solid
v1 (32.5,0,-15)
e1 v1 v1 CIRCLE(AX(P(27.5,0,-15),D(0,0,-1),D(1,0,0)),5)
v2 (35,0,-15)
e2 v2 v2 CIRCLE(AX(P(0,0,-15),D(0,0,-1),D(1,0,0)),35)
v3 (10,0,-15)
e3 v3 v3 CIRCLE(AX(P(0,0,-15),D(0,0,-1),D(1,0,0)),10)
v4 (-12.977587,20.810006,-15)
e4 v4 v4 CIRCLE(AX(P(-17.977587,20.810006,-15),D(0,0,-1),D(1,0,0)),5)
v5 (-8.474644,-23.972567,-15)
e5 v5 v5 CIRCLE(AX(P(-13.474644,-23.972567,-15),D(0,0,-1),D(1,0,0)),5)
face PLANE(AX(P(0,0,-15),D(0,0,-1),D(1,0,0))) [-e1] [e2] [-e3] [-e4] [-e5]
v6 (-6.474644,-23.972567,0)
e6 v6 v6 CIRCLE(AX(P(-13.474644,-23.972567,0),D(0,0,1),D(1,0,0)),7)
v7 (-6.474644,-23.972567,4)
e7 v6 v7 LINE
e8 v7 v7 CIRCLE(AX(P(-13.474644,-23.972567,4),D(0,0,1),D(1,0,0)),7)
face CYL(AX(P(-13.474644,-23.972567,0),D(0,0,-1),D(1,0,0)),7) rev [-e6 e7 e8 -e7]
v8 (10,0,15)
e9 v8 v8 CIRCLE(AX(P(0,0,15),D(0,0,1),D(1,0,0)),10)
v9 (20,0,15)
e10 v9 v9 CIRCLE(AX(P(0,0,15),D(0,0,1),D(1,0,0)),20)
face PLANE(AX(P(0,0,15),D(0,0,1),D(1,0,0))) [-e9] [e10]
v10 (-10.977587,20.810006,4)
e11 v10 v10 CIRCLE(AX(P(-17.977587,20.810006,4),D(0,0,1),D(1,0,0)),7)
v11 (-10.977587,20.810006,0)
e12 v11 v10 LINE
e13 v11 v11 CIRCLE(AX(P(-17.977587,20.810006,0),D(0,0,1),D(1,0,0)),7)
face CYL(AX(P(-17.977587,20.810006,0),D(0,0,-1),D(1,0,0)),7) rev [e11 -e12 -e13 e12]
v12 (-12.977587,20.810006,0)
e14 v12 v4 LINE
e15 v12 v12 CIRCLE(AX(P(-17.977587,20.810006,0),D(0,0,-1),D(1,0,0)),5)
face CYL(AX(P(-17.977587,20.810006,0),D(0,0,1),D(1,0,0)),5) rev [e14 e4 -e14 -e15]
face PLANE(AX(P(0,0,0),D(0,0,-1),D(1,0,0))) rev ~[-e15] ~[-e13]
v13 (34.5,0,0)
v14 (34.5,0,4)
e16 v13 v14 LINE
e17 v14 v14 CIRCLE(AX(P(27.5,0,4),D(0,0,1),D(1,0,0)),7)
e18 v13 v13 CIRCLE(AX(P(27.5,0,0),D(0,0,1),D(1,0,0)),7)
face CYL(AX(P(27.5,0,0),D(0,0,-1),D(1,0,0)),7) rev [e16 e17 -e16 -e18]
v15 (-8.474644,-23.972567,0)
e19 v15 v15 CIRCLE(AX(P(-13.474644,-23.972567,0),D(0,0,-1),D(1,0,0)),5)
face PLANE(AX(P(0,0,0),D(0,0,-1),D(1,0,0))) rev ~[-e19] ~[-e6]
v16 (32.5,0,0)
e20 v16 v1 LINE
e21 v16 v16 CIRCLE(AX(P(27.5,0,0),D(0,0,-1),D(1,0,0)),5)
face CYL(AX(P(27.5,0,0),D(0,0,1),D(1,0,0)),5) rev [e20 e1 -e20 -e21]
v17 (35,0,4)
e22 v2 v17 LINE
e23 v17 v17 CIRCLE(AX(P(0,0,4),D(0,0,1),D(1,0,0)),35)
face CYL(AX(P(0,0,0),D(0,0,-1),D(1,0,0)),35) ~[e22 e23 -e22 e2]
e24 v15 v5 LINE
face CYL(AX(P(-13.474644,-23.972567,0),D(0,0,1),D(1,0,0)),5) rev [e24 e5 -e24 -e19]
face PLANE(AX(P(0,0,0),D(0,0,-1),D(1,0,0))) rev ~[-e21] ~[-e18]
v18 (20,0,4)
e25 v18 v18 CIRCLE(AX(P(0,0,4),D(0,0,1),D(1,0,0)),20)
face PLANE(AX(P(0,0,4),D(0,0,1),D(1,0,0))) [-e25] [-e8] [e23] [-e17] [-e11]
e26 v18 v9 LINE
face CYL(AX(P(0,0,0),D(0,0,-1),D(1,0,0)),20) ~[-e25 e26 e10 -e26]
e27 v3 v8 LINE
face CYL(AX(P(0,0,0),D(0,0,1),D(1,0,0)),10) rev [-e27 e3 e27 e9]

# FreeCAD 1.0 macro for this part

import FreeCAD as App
import Part
import Sketcher

V = App.Vector

doc = App.newDocument("Part")
body = doc.addObject("PartDesign::Body", "Body")

sketch1 = body.newObject("Sketcher::SketchObject", "Sketch")
sketch1.AttachmentSupport = (doc.getObject("XY_Plane"), [""])
sketch1.MapMode = "FlatFace"
sketch1.addGeometry([
    Part.Circle(V(0, 0, 0), V(0, 0, 1), 20),
    Part.Circle(V(0, 0, 0), V(0, 0, 1), 10),
], False)
sketch1.addConstraint([
    Sketcher.Constraint("Coincident", 0, 3, -1, 1),
    Sketcher.Constraint("Coincident", 1, 3, -1, 1),
    Sketcher.Constraint("Diameter", 0, 40.0),
    Sketcher.Constraint("Diameter", 1, 20.0),
])
pad1 = body.newObject("PartDesign::Pad", "Pad")
pad1.Profile = sketch1
pad1.Length = 15

sketch2 = body.newObject("Sketcher::SketchObject", "Sketch001")
sketch2.AttachmentSupport = (doc.getObject("XY_Plane"), [""])
sketch2.MapMode = "FlatFace"
sketch2.addGeometry([
    Part.Circle(V(0, 0, 0), V(0, 0, 1), 35),
    Part.Circle(V(-17.977587, 20.810006, 0), V(0, 0, 1), 5),
    Part.Circle(V(0, 0, 0), V(0, 0, 1), 10),
    Part.Circle(V(27.5, 0, 0), V(0, 0, 1), 5),
    Part.Circle(V(-13.474644, -23.972567, 0), V(0, 0, 1), 5),
], False)
sketch2.addConstraint([
    Sketcher.Constraint("Coincident", 0, 3, -1, 1),
    Sketcher.Constraint("Coincident", 2, 3, -1, 1),
    Sketcher.Constraint("Equal", 1, 3),
    Sketcher.Constraint("Equal", 3, 4),
    Sketcher.Constraint("PointOnObject", 3, 3, -1),
    Sketcher.Constraint("Diameter", 0, 70.0),
    Sketcher.Constraint("Diameter", 1, 10.0),
    Sketcher.Constraint("Diameter", 2, 20.0),
    Sketcher.Constraint("DistanceX", -1, 1, 3, 3, 27.5),
    Sketcher.Constraint("DistanceX", 1, 3, -1, 1, 17.977587),
    Sketcher.Constraint("DistanceY", -1, 1, 1, 3, 20.810006),
    Sketcher.Constraint("DistanceX", 4, 3, -1, 1, 13.474644),
    Sketcher.Constraint("DistanceY", 4, 3, -1, 1, 23.972567),
])
pad2 = body.newObject("PartDesign::Pad", "Pad001")
pad2.Profile = sketch2
pad2.Length = 15
pad2.Reversed = True

sketch3 = body.newObject("Sketcher::SketchObject", "Sketch002")
sketch3.AttachmentSupport = (doc.getObject("XY_Plane"), [""])
sketch3.MapMode = "FlatFace"
sketch3.addGeometry([
    Part.Circle(V(0, 0, 0), V(0, 0, 1), 35),
    Part.Circle(V(-13.474644, -23.972567, 0), V(0, 0, 1), 7),
    Part.Circle(V(0, 0, 0), V(0, 0, 1), 20),
    Part.Circle(V(-17.977587, 20.810006, 0), V(0, 0, 1), 7),
    Part.Circle(V(27.5, 0, 0), V(0, 0, 1), 7),
], False)
sketch3.addConstraint([
    Sketcher.Constraint("Coincident", 0, 3, -1, 1),
    Sketcher.Constraint("Coincident", 2, 3, -1, 1),
    Sketcher.Constraint("Equal", 1, 3),
    Sketcher.Constraint("Equal", 3, 4),
    Sketcher.Constraint("PointOnObject", 4, 3, -1),
    Sketcher.Constraint("Diameter", 0, 70.0),
    Sketcher.Constraint("Diameter", 1, 14.0),
    Sketcher.Constraint("Diameter", 2, 40.0),
    Sketcher.Constraint("DistanceX", -1, 1, 4, 3, 27.5),
    Sketcher.Constraint("DistanceX", 1, 3, -1, 1, 13.474644),
    Sketcher.Constraint("DistanceY", 1, 3, -1, 1, 23.972567),
    Sketcher.Constraint("DistanceX", 3, 3, -1, 1, 17.977587),
    Sketcher.Constraint("DistanceY", -1, 1, 3, 3, 20.810006),
])
pad3 = body.newObject("PartDesign::Pad", "Pad002")
pad3.Profile = sketch3
pad3.Length = 4

doc.recompute()
